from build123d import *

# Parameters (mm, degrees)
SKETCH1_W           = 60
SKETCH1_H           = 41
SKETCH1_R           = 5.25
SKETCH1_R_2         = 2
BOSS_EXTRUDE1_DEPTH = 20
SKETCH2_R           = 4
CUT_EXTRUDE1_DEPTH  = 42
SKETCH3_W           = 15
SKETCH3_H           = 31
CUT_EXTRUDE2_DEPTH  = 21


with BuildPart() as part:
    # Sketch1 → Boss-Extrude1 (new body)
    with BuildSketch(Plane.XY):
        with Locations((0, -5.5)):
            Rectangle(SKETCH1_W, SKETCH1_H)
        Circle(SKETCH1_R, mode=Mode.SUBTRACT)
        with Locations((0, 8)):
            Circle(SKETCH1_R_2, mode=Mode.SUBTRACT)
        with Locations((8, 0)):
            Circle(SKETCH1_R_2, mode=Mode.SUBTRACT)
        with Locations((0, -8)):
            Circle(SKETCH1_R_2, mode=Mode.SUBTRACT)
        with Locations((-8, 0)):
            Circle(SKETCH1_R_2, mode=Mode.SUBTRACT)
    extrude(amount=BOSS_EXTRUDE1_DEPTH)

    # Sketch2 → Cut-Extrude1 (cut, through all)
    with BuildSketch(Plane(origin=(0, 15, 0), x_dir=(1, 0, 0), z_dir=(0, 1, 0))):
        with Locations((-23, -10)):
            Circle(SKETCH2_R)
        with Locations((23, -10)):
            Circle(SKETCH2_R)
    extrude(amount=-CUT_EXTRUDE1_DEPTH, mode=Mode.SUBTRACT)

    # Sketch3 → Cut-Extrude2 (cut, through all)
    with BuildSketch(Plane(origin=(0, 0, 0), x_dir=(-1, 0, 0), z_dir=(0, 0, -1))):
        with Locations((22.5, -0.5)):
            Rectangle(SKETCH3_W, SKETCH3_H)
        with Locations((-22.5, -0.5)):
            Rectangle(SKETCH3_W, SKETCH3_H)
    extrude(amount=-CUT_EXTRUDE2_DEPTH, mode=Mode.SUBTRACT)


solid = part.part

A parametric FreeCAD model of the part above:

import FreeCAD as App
import Part
import Sketcher
from FreeCAD import Vector
Q = App.Units.Quantity

doc = App.newDocument("Part")
params = doc.addObject("Spreadsheet::Sheet", "Params")
for row, (alias, value) in enumerate([
    ("sketch1_diameter", "4 mm"),
    ("sketch1_diameter2", "10.5 mm"),
    ("sketch1_width", "60 mm"),
    ("sketch1_height", "41 mm"),
    ("pad1_length", "20 mm"),
    ("sketch2_diameter", "8 mm"),
    ("sketch3_width", "15 mm"),
    ("sketch3_height", "31 mm"),
], start=1):
    params.set(f"A{row}", alias)
    params.set(f"B{row}", "=" + value)
    params.setAlias(f"B{row}", alias)

body = doc.addObject("PartDesign::Body", "Body")

sketch1 = body.newObject("Sketcher::SketchObject", "Sketch")
sketch1.AttachmentSupport = (doc.getObject("XY_Plane"), [""])
sketch1.MapMode = "FlatFace"
sketch1.addGeometry(Part.LineSegment(Vector(-30, 15, 0), Vector(-30, -26, 0)), False)
sketch1.addGeometry(Part.LineSegment(Vector(-30, -26, 0), Vector(30, -26, 0)), False)
sketch1.addGeometry(Part.LineSegment(Vector(30, -26, 0), Vector(30, 15, 0)), False)
sketch1.addGeometry(Part.LineSegment(Vector(30, 15, 0), Vector(-30, 15, 0)), False)
sketch1.addGeometry(Part.Circle(Vector(0, -8, 0), Vector(0, 0, 1), 2), False)
sketch1.addGeometry(Part.Circle(Vector(-8, 0, 0), Vector(0, 0, 1), 2), False)
sketch1.addGeometry(Part.Circle(Vector(0, 0, 0), Vector(0, 0, 1), 5.25), False)
sketch1.addGeometry(Part.Circle(Vector(8, 0, 0), Vector(0, 0, 1), 2), False)
sketch1.addGeometry(Part.Circle(Vector(0, 8, 0), Vector(0, 0, 1), 2), False)
sketch1.addConstraint(Sketcher.Constraint("Coincident", 0, 2, 1, 1))
sketch1.addConstraint(Sketcher.Constraint("Coincident", 1, 2, 2, 1))
sketch1.addConstraint(Sketcher.Constraint("Coincident", 2, 2, 3, 1))
sketch1.addConstraint(Sketcher.Constraint("Coincident", 3, 2, 0, 1))
sketch1.addConstraint(Sketcher.Constraint("Vertical", 0))
sketch1.addConstraint(Sketcher.Constraint("Horizontal", 1))
sketch1.addConstraint(Sketcher.Constraint("Vertical", 2))
sketch1.addConstraint(Sketcher.Constraint("Horizontal", 3))
sketch1.addConstraint(Sketcher.Constraint("Coincident", 6, 3, -1, 1))
sketch1.addConstraint(Sketcher.Constraint("Equal", 4, 5))
sketch1.addConstraint(Sketcher.Constraint("Equal", 5, 7))
sketch1.addConstraint(Sketcher.Constraint("Equal", 7, 8))
sketch1.addConstraint(Sketcher.Constraint("Symmetric", 5, 3, 7, 3, -1, 1))
sketch1.addConstraint(Sketcher.Constraint("Symmetric", 4, 3, 8, 3, -1, 1))
sketch1.addConstraint(Sketcher.Constraint("PointOnObject", 4, 3, -2))
sketch1.addConstraint(Sketcher.Constraint("PointOnObject", 5, 3, -1))
sketch1.addConstraint(Sketcher.Constraint("Diameter", 4, Q("4 mm")))
sketch1.addConstraint(Sketcher.Constraint("Diameter", 6, Q("10.5 mm")))
sketch1.addConstraint(Sketcher.Constraint("DistanceX", 1, 1, 1, 2, Q("60 mm")))
sketch1.addConstraint(Sketcher.Constraint("DistanceY", 0, 2, 0, 1, Q("41 mm")))
sketch1.addConstraint(Sketcher.Constraint("DistanceY", 4, 3, -1, 1, Q("8 mm")))
sketch1.addConstraint(Sketcher.Constraint("DistanceX", 5, 3, -1, 1, Q("8 mm")))
sketch1.addConstraint(Sketcher.Constraint("DistanceX", 0, 2, -1, 1, Q("30 mm")))
sketch1.addConstraint(Sketcher.Constraint("DistanceY", 0, 2, -1, 1, Q("26 mm")))
sketch1.setExpression("Constraints[16]", "Params.sketch1_diameter")
sketch1.setExpression("Constraints[17]", "Params.sketch1_diameter2")
sketch1.setExpression("Constraints[18]", "Params.sketch1_width")
sketch1.setExpression("Constraints[19]", "Params.sketch1_height")
pad1 = body.newObject("PartDesign::Pad", "Pad")
pad1.Profile = sketch1
pad1.setExpression("Length", "Params.pad1_length")

sketch2 = body.newObject("Sketcher::SketchObject", "Sketch001")
sketch2.AttachmentSupport = (doc.getObject("XZ_Plane"), [""])
sketch2.MapMode = "FlatFace"
sketch2.AttachmentOffset = App.Placement(Vector(0, 0, -15), App.Rotation())
sketch2.addGeometry(Part.Circle(Vector(-23, 10, 0), Vector(0, 0, 1), 4), False)
sketch2.addGeometry(Part.Circle(Vector(23, 10, 0), Vector(0, 0, 1), 4), False)
sketch2.addConstraint(Sketcher.Constraint("Equal", 0, 1))
sketch2.addConstraint(Sketcher.Constraint("Symmetric", 0, 3, 1, 3, -2))
sketch2.addConstraint(Sketcher.Constraint("Diameter", 0, Q("8 mm")))
sketch2.addConstraint(Sketcher.Constraint("DistanceX", 0, 3, -1, 1, Q("23 mm")))
sketch2.addConstraint(Sketcher.Constraint("DistanceY", -1, 1, 0, 3, Q("10 mm")))
sketch2.setExpression("Constraints[2]", "Params.sketch2_diameter")
pocket1 = body.newObject("PartDesign::Pocket", "Pocket")
pocket1.Profile = sketch2
pocket1.Type = "ThroughAll"
pocket1.Reversed = True

sketch3 = body.newObject("Sketcher::SketchObject", "Sketch002")
sketch3.AttachmentSupport = (doc.getObject("XY_Plane"), [""])
sketch3.MapMode = "FlatFace"
sketch3.addGeometry(Part.LineSegment(Vector(-15, 15, 0), Vector(-15, -16, 0)), False)
sketch3.addGeometry(Part.LineSegment(Vector(-15, -16, 0), Vector(-30, -16, 0)), False)
sketch3.addGeometry(Part.LineSegment(Vector(-30, -16, 0), Vector(-30, 15, 0)), False)
sketch3.addGeometry(Part.LineSegment(Vector(-30, 15, 0), Vector(-15, 15, 0)), False)
sketch3.addGeometry(Part.LineSegment(Vector(30, 15, 0), Vector(30, -16, 0)), False)
sketch3.addGeometry(Part.LineSegment(Vector(30, -16, 0), Vector(15, -16, 0)), False)
sketch3.addGeometry(Part.LineSegment(Vector(15, -16, 0), Vector(15, 15, 0)), False)
sketch3.addGeometry(Part.LineSegment(Vector(15, 15, 0), Vector(30, 15, 0)), False)
sketch3.addConstraint(Sketcher.Constraint("Coincident", 0, 2, 1, 1))
sketch3.addConstraint(Sketcher.Constraint("Coincident", 1, 2, 2, 1))
sketch3.addConstraint(Sketcher.Constraint("Coincident", 2, 2, 3, 1))
sketch3.addConstraint(Sketcher.Constraint("Coincident", 3, 2, 0, 1))
sketch3.addConstraint(Sketcher.Constraint("Coincident", 4, 2, 5, 1))
sketch3.addConstraint(Sketcher.Constraint("Coincident", 5, 2, 6, 1))
sketch3.addConstraint(Sketcher.Constraint("Coincident", 6, 2, 7, 1))
sketch3.addConstraint(Sketcher.Constraint("Coincident", 7, 2, 4, 1))
sketch3.addConstraint(Sketcher.Constraint("Vertical", 0))
sketch3.addConstraint(Sketcher.Constraint("Horizontal", 1))
sketch3.addConstraint(Sketcher.Constraint("Vertical", 2))
sketch3.addConstraint(Sketcher.Constraint("Horizontal", 3))
sketch3.addConstraint(Sketcher.Constraint("Vertical", 4))
sketch3.addConstraint(Sketcher.Constraint("Horizontal", 5))
sketch3.addConstraint(Sketcher.Constraint("Vertical", 6))
sketch3.addConstraint(Sketcher.Constraint("Horizontal", 7))
sketch3.addConstraint(Sketcher.Constraint("Symmetric", 1, 2, 4, 2, -2))
sketch3.addConstraint(Sketcher.Constraint("Symmetric", 3, 2, 6, 2, -2))
sketch3.addConstraint(Sketcher.Constraint("DistanceX", 1, 2, 1, 1, Q("15 mm")))
sketch3.addConstraint(Sketcher.Constraint("DistanceY", 0, 2, 0, 1, Q("31 mm")))
sketch3.addConstraint(Sketcher.Constraint("DistanceX", 0, 2, -1, 1, Q("15 mm")))
sketch3.addConstraint(Sketcher.Constraint("DistanceY", 0, 2, -1, 1, Q("16 mm")))
sketch3.setExpression("Constraints[18]", "Params.sketch3_width")
sketch3.setExpression("Constraints[19]", "Params.sketch3_height")
pocket2 = body.newObject("PartDesign::Pocket", "Pocket001")
pocket2.Profile = sketch3
pocket2.Type = "ThroughAll"
pocket2.Reversed = True

doc.recompute()
